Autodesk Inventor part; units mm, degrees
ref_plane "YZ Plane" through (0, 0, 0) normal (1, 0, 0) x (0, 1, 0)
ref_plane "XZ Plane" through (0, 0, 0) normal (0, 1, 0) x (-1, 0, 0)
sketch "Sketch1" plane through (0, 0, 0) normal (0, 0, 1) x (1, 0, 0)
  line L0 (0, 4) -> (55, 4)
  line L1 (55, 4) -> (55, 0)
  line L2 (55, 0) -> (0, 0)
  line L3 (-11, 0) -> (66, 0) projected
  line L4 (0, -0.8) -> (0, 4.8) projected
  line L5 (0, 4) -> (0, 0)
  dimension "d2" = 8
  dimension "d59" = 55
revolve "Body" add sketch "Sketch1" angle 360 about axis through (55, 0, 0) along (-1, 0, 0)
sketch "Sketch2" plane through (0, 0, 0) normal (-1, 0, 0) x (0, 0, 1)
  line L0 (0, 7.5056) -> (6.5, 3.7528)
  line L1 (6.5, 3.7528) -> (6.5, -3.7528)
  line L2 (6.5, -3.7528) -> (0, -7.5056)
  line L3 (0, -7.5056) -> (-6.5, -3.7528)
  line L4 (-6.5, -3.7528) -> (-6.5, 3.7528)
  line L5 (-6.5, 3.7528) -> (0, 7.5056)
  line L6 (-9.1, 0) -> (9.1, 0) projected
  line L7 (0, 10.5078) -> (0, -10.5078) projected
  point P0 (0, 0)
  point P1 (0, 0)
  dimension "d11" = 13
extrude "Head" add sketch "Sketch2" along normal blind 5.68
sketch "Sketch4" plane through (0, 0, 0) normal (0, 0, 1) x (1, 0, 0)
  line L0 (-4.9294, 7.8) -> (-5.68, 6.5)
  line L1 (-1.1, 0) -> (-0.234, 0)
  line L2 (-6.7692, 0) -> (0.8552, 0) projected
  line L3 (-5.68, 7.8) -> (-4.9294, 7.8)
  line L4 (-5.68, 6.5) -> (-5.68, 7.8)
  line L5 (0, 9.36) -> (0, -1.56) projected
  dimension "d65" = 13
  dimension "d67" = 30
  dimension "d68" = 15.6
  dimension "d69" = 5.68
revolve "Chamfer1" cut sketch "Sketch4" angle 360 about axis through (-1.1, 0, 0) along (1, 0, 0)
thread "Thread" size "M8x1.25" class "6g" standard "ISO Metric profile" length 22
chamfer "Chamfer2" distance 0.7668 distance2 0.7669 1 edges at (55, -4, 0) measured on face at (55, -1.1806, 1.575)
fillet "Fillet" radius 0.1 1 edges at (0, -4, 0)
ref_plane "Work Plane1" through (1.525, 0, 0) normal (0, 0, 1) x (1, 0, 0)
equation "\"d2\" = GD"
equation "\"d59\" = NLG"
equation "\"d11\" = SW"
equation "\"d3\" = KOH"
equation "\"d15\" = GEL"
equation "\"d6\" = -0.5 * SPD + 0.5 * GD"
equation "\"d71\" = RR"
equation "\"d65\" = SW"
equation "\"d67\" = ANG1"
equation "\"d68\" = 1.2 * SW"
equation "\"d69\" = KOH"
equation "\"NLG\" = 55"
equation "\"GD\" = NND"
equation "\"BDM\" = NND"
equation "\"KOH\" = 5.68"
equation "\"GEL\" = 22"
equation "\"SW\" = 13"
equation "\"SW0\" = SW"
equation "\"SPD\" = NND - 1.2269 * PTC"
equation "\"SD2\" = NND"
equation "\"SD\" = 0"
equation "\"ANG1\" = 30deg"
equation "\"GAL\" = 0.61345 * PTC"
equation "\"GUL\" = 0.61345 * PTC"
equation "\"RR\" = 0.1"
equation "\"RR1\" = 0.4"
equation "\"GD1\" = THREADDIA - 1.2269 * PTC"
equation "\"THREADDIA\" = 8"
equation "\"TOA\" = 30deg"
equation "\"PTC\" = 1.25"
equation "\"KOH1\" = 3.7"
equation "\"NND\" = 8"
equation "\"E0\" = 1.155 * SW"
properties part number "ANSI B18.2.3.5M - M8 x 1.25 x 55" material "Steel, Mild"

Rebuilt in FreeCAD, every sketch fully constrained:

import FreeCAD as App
import Part
import Sketcher
from FreeCAD import Vector
Q = App.Units.Quantity


def edges_at(feature, points):
    """Names of the edges that pass closest to the given points."""
    edges = feature.Shape.Edges
    near = lambda p: min(range(len(edges)), key=lambda i: edges[i].distToShape(Part.Vertex(*p))[0])
    return sorted({f"Edge{near(p) + 1}" for p in points})

doc = App.newDocument("Part")
body = doc.addObject("PartDesign::Body", "Body")

sketch1 = body.newObject("Sketcher::SketchObject", "Sketch")
sketch1.AttachmentSupport = (doc.getObject("XY_Plane"), [""])
sketch1.MapMode = "FlatFace"
sketch1.addGeometry(Part.LineSegment(Vector(55, 4, 0), Vector(0, 4, 0)), False)
sketch1.addGeometry(Part.LineSegment(Vector(0, 4, 0), Vector(0, 0, 0)), False)
sketch1.addGeometry(Part.LineSegment(Vector(0, 0, 0), Vector(55, 0, 0)), False)
sketch1.addGeometry(Part.LineSegment(Vector(55, 0, 0), Vector(55, 4, 0)), False)
sketch1.addConstraint(Sketcher.Constraint("Coincident", 0, 2, 1, 1))
sketch1.addConstraint(Sketcher.Constraint("Coincident", 1, 2, 2, 1))
sketch1.addConstraint(Sketcher.Constraint("Coincident", 2, 2, 3, 1))
sketch1.addConstraint(Sketcher.Constraint("Coincident", 3, 2, 0, 1))
sketch1.addConstraint(Sketcher.Constraint("Horizontal", 0))
sketch1.addConstraint(Sketcher.Constraint("Vertical", 1))
sketch1.addConstraint(Sketcher.Constraint("Horizontal", 2))
sketch1.addConstraint(Sketcher.Constraint("Vertical", 3))
sketch1.addConstraint(Sketcher.Constraint("Coincident", 1, 2, -1, 1))
sketch1.addConstraint(Sketcher.Constraint("DistanceX", 0, 2, 0, 1, 55.0))
sketch1.addConstraint(Sketcher.Constraint("DistanceY", 1, 2, 1, 1, 4.0))
revolution = body.newObject("PartDesign::Revolution", "Revolution")
revolution.Profile = sketch1
revolution.ReferenceAxis = (sketch1, ["H_Axis"])
revolution.Angle = 360

sketch2 = body.newObject("Sketcher::SketchObject", "Sketch001")
sketch2.AttachmentSupport = (doc.getObject("YZ_Plane"), [""])
sketch2.MapMode = "FlatFace"
sketch2.addGeometry(Part.LineSegment(Vector(4, -6, 0), Vector(-4, -6, 0)), False)
sketch2.addGeometry(Part.LineSegment(Vector(-4, -6, 0), Vector(-8, 0, 0)), False)
sketch2.addGeometry(Part.LineSegment(Vector(-8, 0, 0), Vector(-4, 6, 0)), False)
sketch2.addGeometry(Part.LineSegment(Vector(-4, 6, 0), Vector(4, 6, 0)), False)
sketch2.addGeometry(Part.LineSegment(Vector(4, 6, 0), Vector(8, 0, 0)), False)
sketch2.addGeometry(Part.LineSegment(Vector(8, 0, 0), Vector(4, -6, 0)), False)
sketch2.addConstraint(Sketcher.Constraint("Coincident", 0, 2, 1, 1))
sketch2.addConstraint(Sketcher.Constraint("Coincident", 1, 2, 2, 1))
sketch2.addConstraint(Sketcher.Constraint("Coincident", 2, 2, 3, 1))
sketch2.addConstraint(Sketcher.Constraint("Coincident", 3, 2, 4, 1))
sketch2.addConstraint(Sketcher.Constraint("Coincident", 4, 2, 5, 1))
sketch2.addConstraint(Sketcher.Constraint("Coincident", 5, 2, 0, 1))
sketch2.addConstraint(Sketcher.Constraint("Horizontal", 0))
sketch2.addConstraint(Sketcher.Constraint("Horizontal", 3))
sketch2.addConstraint(Sketcher.Constraint("Symmetric", 0, 2, 3, 2, -1, 1))
sketch2.addConstraint(Sketcher.Constraint("Symmetric", 1, 2, 4, 2, -1, 1))
sketch2.addConstraint(Sketcher.Constraint("PointOnObject", 1, 2, -1))
sketch2.addConstraint(Sketcher.Constraint("Parallel", 2, 5))
sketch2.addConstraint(Sketcher.Constraint("Vertical", 0, 2, 2, 2))
sketch2.addConstraint(Sketcher.Constraint("DistanceY", 0, 2, 2, 2, 13.0))
sketch2.addConstraint(Sketcher.Constraint("Angle", 1, Q("120.0002 deg")))
sketch2.addConstraint(Sketcher.Constraint("DistanceX", 0, 2, 0, 1, 7.5056))
pad1 = body.newObject("PartDesign::Pad", "Pad")
pad1.Profile = sketch2
pad1.Length = 5.68
pad1.Reversed = True

sketch3 = body.newObject("Sketcher::SketchObject", "Sketch002")
sketch3.AttachmentSupport = (doc.getObject("XY_Plane"), [""])
sketch3.MapMode = "FlatFace"
sketch3.addGeometry(Part.LineSegment(Vector(-5.7, 6.5, 0), Vector(-4.9, 7.8, 0)), False)
sketch3.addGeometry(Part.LineSegment(Vector(-4.9, 7.8, 0), Vector(-5.7, 7.8, 0)), False)
sketch3.addGeometry(Part.LineSegment(Vector(-5.7, 7.8, 0), Vector(-5.7, 6.5, 0)), False)
sketch3.addConstraint(Sketcher.Constraint("Coincident", 0, 2, 1, 1))
sketch3.addConstraint(Sketcher.Constraint("Coincident", 1, 2, 2, 1))
sketch3.addConstraint(Sketcher.Constraint("Coincident", 2, 2, 0, 1))
sketch3.addConstraint(Sketcher.Constraint("Horizontal", 1))
sketch3.addConstraint(Sketcher.Constraint("Vertical", 2))
sketch3.addConstraint(Sketcher.Constraint("DistanceX", 1, 2, -1, 1, 5.68))
sketch3.addConstraint(Sketcher.Constraint("DistanceY", 2, 2, 2, 1, 1.3))
sketch3.addConstraint(Sketcher.Constraint("DistanceY", -1, 1, 0, 2, 7.8))
sketch3.addConstraint(Sketcher.Constraint("DistanceX", 1, 2, 1, 1, 0.7506))
groove = body.newObject("PartDesign::Groove", "Groove")
groove.Profile = sketch3
groove.ReferenceAxis = (sketch3, ["H_Axis"])
groove.Angle = 360
doc.recompute()

chamfer = body.newObject("PartDesign::Chamfer", "Chamfer")
chamfer.Base = (groove, edges_at(groove, [(55, -4, 0)]))
chamfer.ChamferType = "Two distances"
chamfer.Size = 0.7668
chamfer.Size2 = 0.7669
doc.recompute()

fillet = body.newObject("PartDesign::Fillet", "Fillet")
fillet.Base = (chamfer, edges_at(chamfer, [(0, -4, 0)]))
fillet.Radius = 0.1

doc.recompute()
